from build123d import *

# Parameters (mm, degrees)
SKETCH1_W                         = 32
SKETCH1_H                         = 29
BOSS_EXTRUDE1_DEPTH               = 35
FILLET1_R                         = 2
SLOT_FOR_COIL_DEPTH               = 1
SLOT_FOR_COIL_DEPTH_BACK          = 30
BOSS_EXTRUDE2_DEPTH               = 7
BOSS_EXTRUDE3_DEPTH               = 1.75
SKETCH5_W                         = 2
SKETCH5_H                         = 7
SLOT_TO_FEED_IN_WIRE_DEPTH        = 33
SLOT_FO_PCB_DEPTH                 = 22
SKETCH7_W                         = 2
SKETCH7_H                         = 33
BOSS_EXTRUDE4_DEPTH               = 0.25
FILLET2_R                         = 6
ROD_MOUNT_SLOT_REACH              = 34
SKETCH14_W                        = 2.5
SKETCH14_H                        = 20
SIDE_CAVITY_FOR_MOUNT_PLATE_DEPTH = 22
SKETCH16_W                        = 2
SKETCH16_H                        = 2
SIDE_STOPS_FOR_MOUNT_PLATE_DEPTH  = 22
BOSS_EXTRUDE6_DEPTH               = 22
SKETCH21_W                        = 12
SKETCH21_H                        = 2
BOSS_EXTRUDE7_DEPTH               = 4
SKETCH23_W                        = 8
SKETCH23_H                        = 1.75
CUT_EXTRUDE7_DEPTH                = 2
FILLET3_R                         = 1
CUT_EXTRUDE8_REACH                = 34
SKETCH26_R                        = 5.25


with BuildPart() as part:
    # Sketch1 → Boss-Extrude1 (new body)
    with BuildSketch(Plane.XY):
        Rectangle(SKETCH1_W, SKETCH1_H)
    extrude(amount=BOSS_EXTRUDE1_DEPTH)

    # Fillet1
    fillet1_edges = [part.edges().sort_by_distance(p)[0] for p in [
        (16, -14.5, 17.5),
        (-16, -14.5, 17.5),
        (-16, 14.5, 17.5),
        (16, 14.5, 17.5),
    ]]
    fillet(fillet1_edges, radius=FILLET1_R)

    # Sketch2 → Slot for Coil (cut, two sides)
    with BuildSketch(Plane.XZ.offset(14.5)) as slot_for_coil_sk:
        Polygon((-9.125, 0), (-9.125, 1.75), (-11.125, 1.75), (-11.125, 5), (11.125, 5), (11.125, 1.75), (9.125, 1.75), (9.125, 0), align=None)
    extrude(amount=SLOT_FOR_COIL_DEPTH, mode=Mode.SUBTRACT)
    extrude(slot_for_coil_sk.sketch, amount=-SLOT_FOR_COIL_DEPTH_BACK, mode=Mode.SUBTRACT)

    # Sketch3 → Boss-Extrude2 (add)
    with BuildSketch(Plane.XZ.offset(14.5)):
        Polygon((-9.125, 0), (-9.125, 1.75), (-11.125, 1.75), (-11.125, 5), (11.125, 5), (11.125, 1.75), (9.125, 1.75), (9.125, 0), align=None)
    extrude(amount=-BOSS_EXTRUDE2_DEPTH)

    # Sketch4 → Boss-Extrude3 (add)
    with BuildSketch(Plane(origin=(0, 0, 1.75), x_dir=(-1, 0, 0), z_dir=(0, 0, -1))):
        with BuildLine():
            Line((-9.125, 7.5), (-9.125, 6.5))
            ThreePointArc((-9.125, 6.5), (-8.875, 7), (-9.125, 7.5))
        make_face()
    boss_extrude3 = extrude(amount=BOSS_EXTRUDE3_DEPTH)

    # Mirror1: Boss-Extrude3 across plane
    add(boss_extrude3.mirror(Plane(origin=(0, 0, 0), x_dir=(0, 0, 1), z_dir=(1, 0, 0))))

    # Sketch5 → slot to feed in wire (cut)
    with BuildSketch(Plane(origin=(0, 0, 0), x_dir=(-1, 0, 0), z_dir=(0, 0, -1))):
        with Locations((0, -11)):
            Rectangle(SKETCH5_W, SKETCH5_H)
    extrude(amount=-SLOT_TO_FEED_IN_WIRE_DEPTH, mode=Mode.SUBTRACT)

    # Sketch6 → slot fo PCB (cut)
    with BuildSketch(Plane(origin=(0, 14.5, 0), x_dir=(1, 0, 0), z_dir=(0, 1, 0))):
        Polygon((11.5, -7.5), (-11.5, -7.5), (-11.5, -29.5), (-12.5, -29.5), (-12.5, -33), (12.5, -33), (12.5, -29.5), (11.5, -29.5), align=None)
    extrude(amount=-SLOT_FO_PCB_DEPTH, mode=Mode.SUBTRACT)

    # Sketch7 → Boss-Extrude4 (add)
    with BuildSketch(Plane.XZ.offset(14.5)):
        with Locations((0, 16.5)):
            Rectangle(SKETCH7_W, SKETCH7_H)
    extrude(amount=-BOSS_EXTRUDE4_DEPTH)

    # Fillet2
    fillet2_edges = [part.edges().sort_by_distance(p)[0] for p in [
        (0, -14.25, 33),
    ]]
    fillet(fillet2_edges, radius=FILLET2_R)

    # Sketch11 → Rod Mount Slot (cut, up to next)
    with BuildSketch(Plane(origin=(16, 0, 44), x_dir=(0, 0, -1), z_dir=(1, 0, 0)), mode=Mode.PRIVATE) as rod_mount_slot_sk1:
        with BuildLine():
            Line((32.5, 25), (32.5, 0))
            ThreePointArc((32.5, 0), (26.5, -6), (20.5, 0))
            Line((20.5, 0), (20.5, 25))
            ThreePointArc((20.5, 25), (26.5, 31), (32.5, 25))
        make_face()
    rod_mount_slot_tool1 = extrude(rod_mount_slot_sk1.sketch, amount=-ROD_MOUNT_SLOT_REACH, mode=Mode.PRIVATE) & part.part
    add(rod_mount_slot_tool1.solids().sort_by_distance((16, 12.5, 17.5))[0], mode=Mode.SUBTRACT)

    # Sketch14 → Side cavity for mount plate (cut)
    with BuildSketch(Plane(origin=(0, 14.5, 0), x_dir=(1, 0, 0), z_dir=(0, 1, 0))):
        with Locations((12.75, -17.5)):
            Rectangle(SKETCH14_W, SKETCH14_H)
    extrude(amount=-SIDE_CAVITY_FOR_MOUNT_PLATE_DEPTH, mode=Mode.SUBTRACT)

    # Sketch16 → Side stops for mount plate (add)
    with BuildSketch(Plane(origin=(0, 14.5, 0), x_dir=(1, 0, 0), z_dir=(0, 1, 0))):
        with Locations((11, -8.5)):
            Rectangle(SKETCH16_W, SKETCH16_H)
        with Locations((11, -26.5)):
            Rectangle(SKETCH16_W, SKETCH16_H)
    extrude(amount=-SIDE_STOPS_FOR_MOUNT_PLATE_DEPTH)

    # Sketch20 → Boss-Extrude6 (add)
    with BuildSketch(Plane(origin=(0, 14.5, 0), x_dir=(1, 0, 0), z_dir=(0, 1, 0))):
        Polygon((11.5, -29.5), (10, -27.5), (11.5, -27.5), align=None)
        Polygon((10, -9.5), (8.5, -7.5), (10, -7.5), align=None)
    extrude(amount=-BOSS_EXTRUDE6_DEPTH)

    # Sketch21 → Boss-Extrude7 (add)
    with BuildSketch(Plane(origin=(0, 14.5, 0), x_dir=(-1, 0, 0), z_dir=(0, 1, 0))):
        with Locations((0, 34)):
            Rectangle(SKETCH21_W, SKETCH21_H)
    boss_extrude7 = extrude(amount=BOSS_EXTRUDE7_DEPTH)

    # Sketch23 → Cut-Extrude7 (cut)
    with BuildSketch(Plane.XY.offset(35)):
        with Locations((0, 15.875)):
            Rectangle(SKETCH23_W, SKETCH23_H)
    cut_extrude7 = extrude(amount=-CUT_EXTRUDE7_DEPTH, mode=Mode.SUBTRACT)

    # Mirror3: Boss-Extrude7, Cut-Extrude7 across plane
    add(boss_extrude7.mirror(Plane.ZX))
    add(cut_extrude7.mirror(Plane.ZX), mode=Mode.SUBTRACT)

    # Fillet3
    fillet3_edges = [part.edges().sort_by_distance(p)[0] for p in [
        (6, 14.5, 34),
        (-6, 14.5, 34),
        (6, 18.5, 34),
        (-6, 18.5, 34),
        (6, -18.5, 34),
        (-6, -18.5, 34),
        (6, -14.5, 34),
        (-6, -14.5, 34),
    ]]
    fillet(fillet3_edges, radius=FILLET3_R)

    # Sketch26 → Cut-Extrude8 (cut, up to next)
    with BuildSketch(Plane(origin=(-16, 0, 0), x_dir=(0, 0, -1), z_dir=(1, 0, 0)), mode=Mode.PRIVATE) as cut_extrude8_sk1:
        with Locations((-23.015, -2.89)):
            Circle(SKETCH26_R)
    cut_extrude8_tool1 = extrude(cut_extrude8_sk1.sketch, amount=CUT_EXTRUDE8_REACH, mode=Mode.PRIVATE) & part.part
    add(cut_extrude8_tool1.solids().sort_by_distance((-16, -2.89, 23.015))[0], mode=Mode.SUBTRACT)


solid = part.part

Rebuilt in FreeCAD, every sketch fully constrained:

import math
import FreeCAD as App
import Part
import Sketcher

V = App.Vector
Q = App.Units.Quantity


def edges_at(feature, points):
    """Names of the edges that pass closest to the given points."""
    edges = feature.Shape.Edges
    near = lambda p: min(range(len(edges)), key=lambda i: edges[i].distToShape(Part.Vertex(*p))[0])
    return sorted({f"Edge{near(p) + 1}" for p in points})

doc = App.newDocument("Part")
body = doc.addObject("PartDesign::Body", "Body")

# Sketch on XY plane
sketch1 = doc.addObject("Sketcher::SketchObject", "Sketch")
body.addObject(sketch1)
sketch1.AttachmentSupport = (doc.XY_Plane, [""])
sketch1.MapMode = "FlatFace"
sketch1.addGeometry(Part.LineSegment(V(-16, 14, 0), V(-16, -14, 0)), False)
sketch1.addGeometry(Part.LineSegment(V(-16, -14, 0), V(16, -14, 0)), False)
sketch1.addGeometry(Part.LineSegment(V(16, -14, 0), V(16, 14, 0)), False)
sketch1.addGeometry(Part.LineSegment(V(16, 14, 0), V(-16, 14, 0)), False)
sketch1.addConstraint(Sketcher.Constraint("Coincident", 0, 2, 1, 1))
sketch1.addConstraint(Sketcher.Constraint("Coincident", 1, 2, 2, 1))
sketch1.addConstraint(Sketcher.Constraint("Coincident", 2, 2, 3, 1))
sketch1.addConstraint(Sketcher.Constraint("Coincident", 3, 2, 0, 1))
sketch1.addConstraint(Sketcher.Constraint("Vertical", 0))
sketch1.addConstraint(Sketcher.Constraint("Horizontal", 1))
sketch1.addConstraint(Sketcher.Constraint("Vertical", 2))
sketch1.addConstraint(Sketcher.Constraint("Horizontal", 3))
sketch1.addConstraint(Sketcher.Constraint("Symmetric", 0, 2, 2, 2, -1, 1))
sketch1.addConstraint(Sketcher.Constraint("DistanceX", 1, 1, 1, 2, Q("32 mm")))
sketch1.addConstraint(Sketcher.Constraint("DistanceY", 0, 2, 0, 1, Q("29 mm")))
pad1 = doc.addObject("PartDesign::Pad", "Pad")
body.addObject(pad1)
pad1.Profile = sketch1
pad1.Length = 35
doc.recompute()

fillet = doc.addObject("PartDesign::Fillet", "Fillet")
body.addObject(fillet)
fillet.Base = (pad1, edges_at(pad1, [
    (16, -14.5, 17.5),
    (-16, -14.5, 17.5),
    (-16, 14.5, 17.5),
    (16, 14.5, 17.5),
]))
fillet.Radius = 2

# Sketch on XZ plane
sketch2 = doc.addObject("Sketcher::SketchObject", "Sketch001")
body.addObject(sketch2)
sketch2.AttachmentSupport = (doc.XZ_Plane, [""])
sketch2.MapMode = "FlatFace"
sketch2.AttachmentOffset = App.Placement(V(0, 0, 14.5), App.Rotation())
sketch2.addGeometry(Part.LineSegment(V(-9.1, 1.8, 0), V(-9.1, 0, 0)), False)
sketch2.addGeometry(Part.LineSegment(V(-9.1, 0, 0), V(9.1, 0, 0)), False)
sketch2.addGeometry(Part.LineSegment(V(9.1, 0, 0), V(9.1, 1.8, 0)), False)
sketch2.addGeometry(Part.LineSegment(V(9.1, 1.8, 0), V(11.1, 1.8, 0)), False)
sketch2.addGeometry(Part.LineSegment(V(11.1, 1.8, 0), V(11.1, 5, 0)), False)
sketch2.addGeometry(Part.LineSegment(V(11.1, 5, 0), V(-11.1, 5, 0)), False)
sketch2.addGeometry(Part.LineSegment(V(-11.1, 5, 0), V(-11.1, 1.8, 0)), False)
sketch2.addGeometry(Part.LineSegment(V(-11.1, 1.8, 0), V(-9.1, 1.8, 0)), False)
sketch2.addConstraint(Sketcher.Constraint("Coincident", 0, 2, 1, 1))
sketch2.addConstraint(Sketcher.Constraint("Coincident", 1, 2, 2, 1))
sketch2.addConstraint(Sketcher.Constraint("Coincident", 2, 2, 3, 1))
sketch2.addConstraint(Sketcher.Constraint("Coincident", 3, 2, 4, 1))
sketch2.addConstraint(Sketcher.Constraint("Coincident", 4, 2, 5, 1))
sketch2.addConstraint(Sketcher.Constraint("Coincident", 5, 2, 6, 1))
sketch2.addConstraint(Sketcher.Constraint("Coincident", 6, 2, 7, 1))
sketch2.addConstraint(Sketcher.Constraint("Coincident", 7, 2, 0, 1))
sketch2.addConstraint(Sketcher.Constraint("Vertical", 0))
sketch2.addConstraint(Sketcher.Constraint("Horizontal", 1))
sketch2.addConstraint(Sketcher.Constraint("Vertical", 2))
sketch2.addConstraint(Sketcher.Constraint("Horizontal", 3))
sketch2.addConstraint(Sketcher.Constraint("Vertical", 4))
sketch2.addConstraint(Sketcher.Constraint("Horizontal", 5))
sketch2.addConstraint(Sketcher.Constraint("Vertical", 6))
sketch2.addConstraint(Sketcher.Constraint("Horizontal", 7))
sketch2.addConstraint(Sketcher.Constraint("Symmetric", 0, 2, 1, 2, -1, 1))
sketch2.addConstraint(Sketcher.Constraint("Symmetric", 3, 2, 6, 2, -2))
sketch2.addConstraint(Sketcher.Constraint("DistanceX", 3, 1, 3, 2, Q("2 mm")))
sketch2.addConstraint(Sketcher.Constraint("DistanceY", -1, 1, 4, 2, Q("5 mm")))
sketch2.addConstraint(Sketcher.Constraint("DistanceX", 1, 1, 1, 2, Q("18.25 mm")))
sketch2.addConstraint(Sketcher.Constraint("DistanceY", 0, 2, 0, 1, Q("1.75 mm")))
pocket1 = doc.addObject("PartDesign::Pocket", "Pocket")
body.addObject(pocket1)
pocket1.Profile = sketch2
pocket1.Type = "ThroughAll"
pocket1.Midplane = True

# Sketch on XZ plane
sketch3 = doc.addObject("Sketcher::SketchObject", "Sketch002")
body.addObject(sketch3)
sketch3.AttachmentSupport = (doc.XZ_Plane, [""])
sketch3.MapMode = "FlatFace"
sketch3.AttachmentOffset = App.Placement(V(0, 0, 14.5), App.Rotation())
sketch3.addGeometry(Part.LineSegment(V(-9.1, 1.8, 0), V(-9.1, 0, 0)), False)
sketch3.addGeometry(Part.LineSegment(V(-9.1, 0, 0), V(9.1, 0, 0)), False)
sketch3.addGeometry(Part.LineSegment(V(9.1, 0, 0), V(9.1, 1.8, 0)), False)
sketch3.addGeometry(Part.LineSegment(V(9.1, 1.8, 0), V(11.1, 1.8, 0)), False)
sketch3.addGeometry(Part.LineSegment(V(11.1, 1.8, 0), V(11.1, 5, 0)), False)
sketch3.addGeometry(Part.LineSegment(V(11.1, 5, 0), V(-11.1, 5, 0)), False)
sketch3.addGeometry(Part.LineSegment(V(-11.1, 5, 0), V(-11.1, 1.8, 0)), False)
sketch3.addGeometry(Part.LineSegment(V(-11.1, 1.8, 0), V(-9.1, 1.8, 0)), False)
sketch3.addConstraint(Sketcher.Constraint("Coincident", 0, 2, 1, 1))
sketch3.addConstraint(Sketcher.Constraint("Coincident", 1, 2, 2, 1))
sketch3.addConstraint(Sketcher.Constraint("Coincident", 2, 2, 3, 1))
sketch3.addConstraint(Sketcher.Constraint("Coincident", 3, 2, 4, 1))
sketch3.addConstraint(Sketcher.Constraint("Coincident", 4, 2, 5, 1))
sketch3.addConstraint(Sketcher.Constraint("Coincident", 5, 2, 6, 1))
sketch3.addConstraint(Sketcher.Constraint("Coincident", 6, 2, 7, 1))
sketch3.addConstraint(Sketcher.Constraint("Coincident", 7, 2, 0, 1))
sketch3.addConstraint(Sketcher.Constraint("Vertical", 0))
sketch3.addConstraint(Sketcher.Constraint("Horizontal", 1))
sketch3.addConstraint(Sketcher.Constraint("Vertical", 2))
sketch3.addConstraint(Sketcher.Constraint("Horizontal", 3))
sketch3.addConstraint(Sketcher.Constraint("Vertical", 4))
sketch3.addConstraint(Sketcher.Constraint("Horizontal", 5))
sketch3.addConstraint(Sketcher.Constraint("Vertical", 6))
sketch3.addConstraint(Sketcher.Constraint("Horizontal", 7))
sketch3.addConstraint(Sketcher.Constraint("Symmetric", 0, 2, 1, 2, -1, 1))
sketch3.addConstraint(Sketcher.Constraint("Symmetric", 3, 2, 6, 2, -2))
sketch3.addConstraint(Sketcher.Constraint("DistanceX", 3, 1, 3, 2, Q("2 mm")))
sketch3.addConstraint(Sketcher.Constraint("DistanceY", -1, 1, 4, 2, Q("5 mm")))
sketch3.addConstraint(Sketcher.Constraint("DistanceX", 1, 1, 1, 2, Q("18.25 mm")))
sketch3.addConstraint(Sketcher.Constraint("DistanceY", 0, 2, 0, 1, Q("1.75 mm")))
pad2 = doc.addObject("PartDesign::Pad", "Pad001")
body.addObject(pad2)
pad2.Profile = sketch3
pad2.Length = 7
pad2.Reversed = True

# Sketch on XY plane
sketch4 = doc.addObject("Sketcher::SketchObject", "Sketch003")
body.addObject(sketch4)
sketch4.AttachmentSupport = (doc.XY_Plane, [""])
sketch4.MapMode = "FlatFace"
sketch4.AttachmentOffset = App.Placement(V(0, 0, 1.75), App.Rotation())
sketch4.addGeometry(Part.LineSegment(V(9.1, 7.5, 0), V(9.1, 6.5, 0)), False)
sketch4.addGeometry(Part.ArcOfCircle(Part.Circle(V(9.5, 7, 0), V(0, 0, 1), 0.6), math.radians(127), math.radians(233)), False)
sketch4.addConstraint(Sketcher.Constraint("Coincident", 0, 1, 1, 1))
sketch4.addConstraint(Sketcher.Constraint("Coincident", 1, 2, 0, 2))
sketch4.addConstraint(Sketcher.Constraint("Vertical", 0))
sketch4.addConstraint(Sketcher.Constraint("DistanceY", 0, 2, 0, 1, Q("1 mm")))
sketch4.addConstraint(Sketcher.Constraint("DistanceY", -1, 1, 1, 3, Q("7 mm")))
sketch4.addConstraint(Sketcher.Constraint("Radius", 1, Q("0.625 mm")))
sketch4.addConstraint(Sketcher.Constraint("DistanceX", -1, 1, 1, 3, Q("9.5 mm")))
pad3 = doc.addObject("PartDesign::Pad", "Pad002")
body.addObject(pad3)
pad3.Profile = sketch4
pad3.Length = 1.75
pad3.Reversed = True
doc.recompute()

mirrored = doc.addObject("PartDesign::Mirrored", "Mirrored")
body.addObject(mirrored)
mirrored.Originals = [pad3]
mirrored.MirrorPlane = (doc.YZ_Plane, [""])
body.Tip = mirrored

# Sketch on XY plane
sketch5 = doc.addObject("Sketcher::SketchObject", "Sketch004")
body.addObject(sketch5)
sketch5.AttachmentSupport = (doc.XY_Plane, [""])
sketch5.MapMode = "FlatFace"
sketch5.addGeometry(Part.LineSegment(V(1, -7.5, 0), V(1, -14.5, 0)), False)
sketch5.addGeometry(Part.LineSegment(V(1, -14.5, 0), V(-1, -14.5, 0)), False)
sketch5.addGeometry(Part.LineSegment(V(-1, -14.5, 0), V(-1, -7.5, 0)), False)
sketch5.addGeometry(Part.LineSegment(V(-1, -7.5, 0), V(1, -7.5, 0)), False)
sketch5.addConstraint(Sketcher.Constraint("Coincident", 0, 2, 1, 1))
sketch5.addConstraint(Sketcher.Constraint("Coincident", 1, 2, 2, 1))
sketch5.addConstraint(Sketcher.Constraint("Coincident", 2, 2, 3, 1))
sketch5.addConstraint(Sketcher.Constraint("Coincident", 3, 2, 0, 1))
sketch5.addConstraint(Sketcher.Constraint("Vertical", 0))
sketch5.addConstraint(Sketcher.Constraint("Horizontal", 1))
sketch5.addConstraint(Sketcher.Constraint("Vertical", 2))
sketch5.addConstraint(Sketcher.Constraint("Horizontal", 3))
sketch5.addConstraint(Sketcher.Constraint("DistanceX", 1, 2, 1, 1, Q("2 mm")))
sketch5.addConstraint(Sketcher.Constraint("DistanceY", 0, 2, 0, 1, Q("7 mm")))
sketch5.addConstraint(Sketcher.Constraint("DistanceX", -1, 1, 0, 2, Q("1 mm")))
sketch5.addConstraint(Sketcher.Constraint("DistanceY", 0, 2, -1, 1, Q("14.5 mm")))
pocket2 = doc.addObject("PartDesign::Pocket", "Pocket001")
body.addObject(pocket2)
pocket2.Profile = sketch5
pocket2.Length = 33
pocket2.Reversed = True

# Sketch on XZ plane
sketch6 = doc.addObject("Sketcher::SketchObject", "Sketch005")
body.addObject(sketch6)
sketch6.AttachmentSupport = (doc.XZ_Plane, [""])
sketch6.MapMode = "FlatFace"
sketch6.AttachmentOffset = App.Placement(V(0, 0, -14.5), App.Rotation())
sketch6.addGeometry(Part.LineSegment(V(11.5, 7.5, 0), V(-11.5, 7.5, 0)), False)
sketch6.addGeometry(Part.LineSegment(V(-11.5, 7.5, 0), V(-11.5, 29.5, 0)), False)
sketch6.addGeometry(Part.LineSegment(V(-11.5, 29.5, 0), V(-12.5, 29.5, 0)), False)
sketch6.addGeometry(Part.LineSegment(V(-12.5, 29.5, 0), V(-12.5, 33, 0)), False)
sketch6.addGeometry(Part.LineSegment(V(-12.5, 33, 0), V(12.5, 33, 0)), False)
sketch6.addGeometry(Part.LineSegment(V(12.5, 33, 0), V(12.5, 29.5, 0)), False)
sketch6.addGeometry(Part.LineSegment(V(12.5, 29.5, 0), V(11.5, 29.5, 0)), False)
sketch6.addGeometry(Part.LineSegment(V(11.5, 29.5, 0), V(11.5, 7.5, 0)), False)
sketch6.addConstraint(Sketcher.Constraint("Coincident", 0, 2, 1, 1))
sketch6.addConstraint(Sketcher.Constraint("Coincident", 1, 2, 2, 1))
sketch6.addConstraint(Sketcher.Constraint("Coincident", 2, 2, 3, 1))
sketch6.addConstraint(Sketcher.Constraint("Coincident", 3, 2, 4, 1))
sketch6.addConstraint(Sketcher.Constraint("Coincident", 4, 2, 5, 1))
sketch6.addConstraint(Sketcher.Constraint("Coincident", 5, 2, 6, 1))
sketch6.addConstraint(Sketcher.Constraint("Coincident", 6, 2, 7, 1))
sketch6.addConstraint(Sketcher.Constraint("Coincident", 7, 2, 0, 1))
sketch6.addConstraint(Sketcher.Constraint("Horizontal", 0))
sketch6.addConstraint(Sketcher.Constraint("Vertical", 1))
sketch6.addConstraint(Sketcher.Constraint("Horizontal", 2))
sketch6.addConstraint(Sketcher.Constraint("Vertical", 3))
sketch6.addConstraint(Sketcher.Constraint("Horizontal", 4))
sketch6.addConstraint(Sketcher.Constraint("Vertical", 5))
sketch6.addConstraint(Sketcher.Constraint("Horizontal", 6))
sketch6.addConstraint(Sketcher.Constraint("Vertical", 7))
sketch6.addConstraint(Sketcher.Constraint("Symmetric", 2, 2, 5, 2, -2))
sketch6.addConstraint(Sketcher.Constraint("Equal", 2, 6))
sketch6.addConstraint(Sketcher.Constraint("DistanceX", 0, 2, 0, 1, Q("23 mm")))
sketch6.addConstraint(Sketcher.Constraint("DistanceX", 2, 2, 2, 1, Q("1 mm")))
sketch6.addConstraint(Sketcher.Constraint("DistanceY", 1, 1, 1, 2, Q("22 mm")))
sketch6.addConstraint(Sketcher.Constraint("DistanceY", 3, 1, 3, 2, Q("3.5 mm")))
sketch6.addConstraint(Sketcher.Constraint("DistanceY", -1, 1, 3, 2, Q("33 mm")))
pocket3 = doc.addObject("PartDesign::Pocket", "Pocket002")
body.addObject(pocket3)
pocket3.Profile = sketch6
pocket3.Length = 22
pocket3.Reversed = True

# Sketch on XZ plane
sketch7 = doc.addObject("Sketcher::SketchObject", "Sketch006")
body.addObject(sketch7)
sketch7.AttachmentSupport = (doc.XZ_Plane, [""])
sketch7.MapMode = "FlatFace"
sketch7.AttachmentOffset = App.Placement(V(0, 0, 14.5), App.Rotation())
sketch7.addGeometry(Part.LineSegment(V(-1, 33, 0), V(-1, 0, 0)), False)
sketch7.addGeometry(Part.LineSegment(V(-1, 0, 0), V(1, 0, 0)), False)
sketch7.addGeometry(Part.LineSegment(V(1, 0, 0), V(1, 33, 0)), False)
sketch7.addGeometry(Part.LineSegment(V(1, 33, 0), V(-1, 33, 0)), False)
sketch7.addConstraint(Sketcher.Constraint("Coincident", 0, 2, 1, 1))
sketch7.addConstraint(Sketcher.Constraint("Coincident", 1, 2, 2, 1))
sketch7.addConstraint(Sketcher.Constraint("Coincident", 2, 2, 3, 1))
sketch7.addConstraint(Sketcher.Constraint("Coincident", 3, 2, 0, 1))
sketch7.addConstraint(Sketcher.Constraint("Vertical", 0))
sketch7.addConstraint(Sketcher.Constraint("Horizontal", 1))
sketch7.addConstraint(Sketcher.Constraint("Vertical", 2))
sketch7.addConstraint(Sketcher.Constraint("Horizontal", 3))
sketch7.addConstraint(Sketcher.Constraint("Symmetric", 0, 2, 1, 2, -1, 1))
sketch7.addConstraint(Sketcher.Constraint("DistanceX", 1, 1, 1, 2, Q("2 mm")))
sketch7.addConstraint(Sketcher.Constraint("DistanceY", 0, 2, 0, 1, Q("33 mm")))
pad4 = doc.addObject("PartDesign::Pad", "Pad003")
body.addObject(pad4)
pad4.Profile = sketch7
pad4.Length = 0.25
pad4.Reversed = True
doc.recompute()

fillet2 = doc.addObject("PartDesign::Fillet", "Fillet001")
body.addObject(fillet2)
fillet2.Base = (pad4, edges_at(pad4, [(0, -14.25, 33)]))
fillet2.Radius = 6

# Sketch on YZ plane
sketch8 = doc.addObject("Sketcher::SketchObject", "Sketch007")
body.addObject(sketch8)
sketch8.AttachmentSupport = (doc.YZ_Plane, [""])
sketch8.MapMode = "FlatFace"
sketch8.AttachmentOffset = App.Placement(V(0, 0, 16), App.Rotation())
sketch8.addGeometry(Part.LineSegment(V(0, 12, 0), V(25, 12, 0)), False)
sketch8.addGeometry(Part.ArcOfCircle(Part.Circle(V(25, 18, 0), V(0, 0, 1), 6), math.radians(-90), math.radians(90)), False)
sketch8.addGeometry(Part.LineSegment(V(25, 24, 0), V(0, 24, 0)), False)
sketch8.addGeometry(Part.ArcOfCircle(Part.Circle(V(0, 18, 0), V(0, 0, 1), 6), math.radians(90), math.radians(270)), False)
sketch8.addConstraint(Sketcher.Constraint("Tangent", 0, 2, 1, 1))
sketch8.addConstraint(Sketcher.Constraint("Tangent", 1, 2, 2, 1))
sketch8.addConstraint(Sketcher.Constraint("Tangent", 2, 2, 3, 1))
sketch8.addConstraint(Sketcher.Constraint("Tangent", 3, 2, 0, 1))
sketch8.addConstraint(Sketcher.Constraint("Horizontal", 0))
sketch8.addConstraint(Sketcher.Constraint("Horizontal", 2))
sketch8.addConstraint(Sketcher.Constraint("PointOnObject", 3, 3, -2))
sketch8.addConstraint(Sketcher.Constraint("Radius", 1, Q("6 mm")))
sketch8.addConstraint(Sketcher.Constraint("DistanceX", 0, 1, 0, 2, Q("25 mm")))
sketch8.addConstraint(Sketcher.Constraint("DistanceY", -1, 1, 1, 3, Q("17.5 mm")))
pocket4 = doc.addObject("PartDesign::Pocket", "Pocket003")
body.addObject(pocket4)
pocket4.Profile = sketch8
pocket4.Type = "UpToFirst"

# Sketch on XZ plane
sketch9 = doc.addObject("Sketcher::SketchObject", "Sketch008")
body.addObject(sketch9)
sketch9.AttachmentSupport = (doc.XZ_Plane, [""])
sketch9.MapMode = "FlatFace"
sketch9.AttachmentOffset = App.Placement(V(0, 0, -14.5), App.Rotation())
sketch9.addGeometry(Part.LineSegment(V(11.5, 7.5, 0), V(11.5, 27.5, 0)), False)
sketch9.addGeometry(Part.LineSegment(V(11.5, 27.5, 0), V(14, 27.5, 0)), False)
sketch9.addGeometry(Part.LineSegment(V(14, 27.5, 0), V(14, 7.5, 0)), False)
sketch9.addGeometry(Part.LineSegment(V(14, 7.5, 0), V(11.5, 7.5, 0)), False)
sketch9.addConstraint(Sketcher.Constraint("Coincident", 0, 2, 1, 1))
sketch9.addConstraint(Sketcher.Constraint("Coincident", 1, 2, 2, 1))
sketch9.addConstraint(Sketcher.Constraint("Coincident", 2, 2, 3, 1))
sketch9.addConstraint(Sketcher.Constraint("Coincident", 3, 2, 0, 1))
sketch9.addConstraint(Sketcher.Constraint("Vertical", 0))
sketch9.addConstraint(Sketcher.Constraint("Horizontal", 1))
sketch9.addConstraint(Sketcher.Constraint("Vertical", 2))
sketch9.addConstraint(Sketcher.Constraint("Horizontal", 3))
sketch9.addConstraint(Sketcher.Constraint("DistanceY", 0, 1, 0, 2, Q("20 mm")))
sketch9.addConstraint(Sketcher.Constraint("DistanceX", 1, 1, 1, 2, Q("2.5 mm")))
sketch9.addConstraint(Sketcher.Constraint("DistanceX", -1, 1, 1, 2, Q("14 mm")))
sketch9.addConstraint(Sketcher.Constraint("DistanceY", -1, 1, 0, 2, Q("27.5 mm")))
pocket5 = doc.addObject("PartDesign::Pocket", "Pocket004")
body.addObject(pocket5)
pocket5.Profile = sketch9
pocket5.Length = 22
pocket5.Reversed = True

# Sketch on XZ plane
sketch10 = doc.addObject("Sketcher::SketchObject", "Sketch009")
body.addObject(sketch10)
sketch10.AttachmentSupport = (doc.XZ_Plane, [""])
sketch10.MapMode = "FlatFace"
sketch10.AttachmentOffset = App.Placement(V(0, 0, -14.5), App.Rotation())
sketch10.addGeometry(Part.LineSegment(V(10, 7.5, 0), V(10, 9.5, 0)), False)
sketch10.addGeometry(Part.LineSegment(V(10, 9.5, 0), V(12, 9.5, 0)), False)
sketch10.addGeometry(Part.LineSegment(V(12, 9.5, 0), V(12, 7.5, 0)), False)
sketch10.addGeometry(Part.LineSegment(V(12, 7.5, 0), V(10, 7.5, 0)), False)
sketch10.addGeometry(Part.LineSegment(V(10, 25.5, 0), V(10, 27.5, 0)), False)
sketch10.addGeometry(Part.LineSegment(V(10, 27.5, 0), V(12, 27.5, 0)), False)
sketch10.addGeometry(Part.LineSegment(V(12, 27.5, 0), V(12, 25.5, 0)), False)
sketch10.addGeometry(Part.LineSegment(V(12, 25.5, 0), V(10, 25.5, 0)), False)
sketch10.addConstraint(Sketcher.Constraint("Coincident", 0, 2, 1, 1))
sketch10.addConstraint(Sketcher.Constraint("Coincident", 1, 2, 2, 1))
sketch10.addConstraint(Sketcher.Constraint("Coincident", 2, 2, 3, 1))
sketch10.addConstraint(Sketcher.Constraint("Coincident", 3, 2, 0, 1))
sketch10.addConstraint(Sketcher.Constraint("Coincident", 4, 2, 5, 1))
sketch10.addConstraint(Sketcher.Constraint("Coincident", 5, 2, 6, 1))
sketch10.addConstraint(Sketcher.Constraint("Coincident", 6, 2, 7, 1))
sketch10.addConstraint(Sketcher.Constraint("Coincident", 7, 2, 4, 1))
sketch10.addConstraint(Sketcher.Constraint("Vertical", 0))
sketch10.addConstraint(Sketcher.Constraint("Horizontal", 1))
sketch10.addConstraint(Sketcher.Constraint("Vertical", 2))
sketch10.addConstraint(Sketcher.Constraint("Horizontal", 3))
sketch10.addConstraint(Sketcher.Constraint("Vertical", 4))
sketch10.addConstraint(Sketcher.Constraint("Horizontal", 5))
sketch10.addConstraint(Sketcher.Constraint("Vertical", 6))
sketch10.addConstraint(Sketcher.Constraint("Horizontal", 7))
sketch10.addConstraint(Sketcher.Constraint("Vertical", 3, 2, 4, 2))
sketch10.addConstraint(Sketcher.Constraint("Vertical", 2, 2, 5, 2))
sketch10.addConstraint(Sketcher.Constraint("Equal", 7, 0))
sketch10.addConstraint(Sketcher.Constraint("Equal", 2, 4))
sketch10.addConstraint(Sketcher.Constraint("DistanceX", 1, 1, 1, 2, Q("2 mm")))
sketch10.addConstraint(Sketcher.Constraint("DistanceX", -1, 1, 0, 2, Q("10 mm")))
sketch10.addConstraint(Sketcher.Constraint("DistanceY", 0, 2, 4, 2, Q("18 mm")))
sketch10.addConstraint(Sketcher.Constraint("DistanceY", -1, 1, 0, 2, Q("9.5 mm")))
pad5 = doc.addObject("PartDesign::Pad", "Pad004")
body.addObject(pad5)
pad5.Profile = sketch10
pad5.Length = 22

# Sketch on XZ plane
sketch11 = doc.addObject("Sketcher::SketchObject", "Sketch010")
body.addObject(sketch11)
sketch11.AttachmentSupport = (doc.XZ_Plane, [""])
sketch11.MapMode = "FlatFace"
sketch11.AttachmentOffset = App.Placement(V(0, 0, -14.5), App.Rotation())
sketch11.addGeometry(Part.LineSegment(V(10, 27.5, 0), V(11.5, 29.5, 0)), False)
sketch11.addGeometry(Part.LineSegment(V(11.5, 29.5, 0), V(11.5, 27.5, 0)), False)
sketch11.addGeometry(Part.LineSegment(V(11.5, 27.5, 0), V(10, 27.5, 0)), False)
sketch11.addGeometry(Part.LineSegment(V(8.5, 7.5, 0), V(10, 9.5, 0)), False)
sketch11.addGeometry(Part.LineSegment(V(10, 9.5, 0), V(10, 7.5, 0)), False)
sketch11.addGeometry(Part.LineSegment(V(10, 7.5, 0), V(8.5, 7.5, 0)), False)
sketch11.addConstraint(Sketcher.Constraint("Coincident", 0, 2, 1, 1))
sketch11.addConstraint(Sketcher.Constraint("Coincident", 1, 2, 2, 1))
sketch11.addConstraint(Sketcher.Constraint("Coincident", 2, 2, 0, 1))
sketch11.addConstraint(Sketcher.Constraint("Coincident", 3, 2, 4, 1))
sketch11.addConstraint(Sketcher.Constraint("Coincident", 4, 2, 5, 1))
sketch11.addConstraint(Sketcher.Constraint("Coincident", 5, 2, 3, 1))
sketch11.addConstraint(Sketcher.Constraint("Vertical", 1))
sketch11.addConstraint(Sketcher.Constraint("Horizontal", 2))
sketch11.addConstraint(Sketcher.Constraint("Vertical", 4))
sketch11.addConstraint(Sketcher.Constraint("Horizontal", 5))
sketch11.addConstraint(Sketcher.Constraint("Parallel", 0, 3))
sketch11.addConstraint(Sketcher.Constraint("Vertical", 2, 2, 3, 2))
sketch11.addConstraint(Sketcher.Constraint("Equal", 2, 5))
sketch11.addConstraint(Sketcher.Constraint("DistanceY", 1, 2, 1, 1, Q("2 mm")))
sketch11.addConstraint(Sketcher.Constraint("DistanceX", 2, 2, 2, 1, Q("1.5 mm")))
sketch11.addConstraint(Sketcher.Constraint("DistanceX", -1, 1, 2, 2, Q("10 mm")))
sketch11.addConstraint(Sketcher.Constraint("DistanceY", 3, 2, 2, 2, Q("18 mm")))
sketch11.addConstraint(Sketcher.Constraint("DistanceY", -1, 1, 0, 2, Q("29.5 mm")))
pad6 = doc.addObject("PartDesign::Pad", "Pad005")
body.addObject(pad6)
pad6.Profile = sketch11
pad6.Length = 22

# Sketch on XZ plane
sketch12 = doc.addObject("Sketcher::SketchObject", "Sketch011")
body.addObject(sketch12)
sketch12.AttachmentSupport = (doc.XZ_Plane, [""])
sketch12.MapMode = "FlatFace"
sketch12.AttachmentOffset = App.Placement(V(0, 0, -14.5), App.Rotation())
sketch12.addGeometry(Part.LineSegment(V(6, 35, 0), V(6, 33, 0)), False)
sketch12.addGeometry(Part.LineSegment(V(6, 33, 0), V(-6, 33, 0)), False)
sketch12.addGeometry(Part.LineSegment(V(-6, 33, 0), V(-6, 35, 0)), False)
sketch12.addGeometry(Part.LineSegment(V(-6, 35, 0), V(6, 35, 0)), False)
sketch12.addConstraint(Sketcher.Constraint("Coincident", 0, 2, 1, 1))
sketch12.addConstraint(Sketcher.Constraint("Coincident", 1, 2, 2, 1))
sketch12.addConstraint(Sketcher.Constraint("Coincident", 2, 2, 3, 1))
sketch12.addConstraint(Sketcher.Constraint("Coincident", 3, 2, 0, 1))
sketch12.addConstraint(Sketcher.Constraint("Vertical", 0))
sketch12.addConstraint(Sketcher.Constraint("Horizontal", 1))
sketch12.addConstraint(Sketcher.Constraint("Vertical", 2))
sketch12.addConstraint(Sketcher.Constraint("Horizontal", 3))
sketch12.addConstraint(Sketcher.Constraint("DistanceX", 1, 2, 1, 1, Q("12 mm")))
sketch12.addConstraint(Sketcher.Constraint("DistanceY", 0, 2, 0, 1, Q("2 mm")))
sketch12.addConstraint(Sketcher.Constraint("DistanceX", -1, 1, 0, 2, Q("6 mm")))
sketch12.addConstraint(Sketcher.Constraint("DistanceY", -1, 1, 0, 2, Q("33 mm")))
pad7 = doc.addObject("PartDesign::Pad", "Pad006")
body.addObject(pad7)
pad7.Profile = sketch12
pad7.Length = 4
pad7.Reversed = True

# Sketch on XY plane
sketch13 = doc.addObject("Sketcher::SketchObject", "Sketch012")
body.addObject(sketch13)
sketch13.AttachmentSupport = (doc.XY_Plane, [""])
sketch13.MapMode = "FlatFace"
sketch13.AttachmentOffset = App.Placement(V(0, 0, 35), App.Rotation())
sketch13.addGeometry(Part.LineSegment(V(-4, 16.8, 0), V(-4, 15, 0)), False)
sketch13.addGeometry(Part.LineSegment(V(-4, 15, 0), V(4, 15, 0)), False)
sketch13.addGeometry(Part.LineSegment(V(4, 15, 0), V(4, 16.8, 0)), False)
sketch13.addGeometry(Part.LineSegment(V(4, 16.8, 0), V(-4, 16.8, 0)), False)
sketch13.addConstraint(Sketcher.Constraint("Coincident", 0, 2, 1, 1))
sketch13.addConstraint(Sketcher.Constraint("Coincident", 1, 2, 2, 1))
sketch13.addConstraint(Sketcher.Constraint("Coincident", 2, 2, 3, 1))
sketch13.addConstraint(Sketcher.Constraint("Coincident", 3, 2, 0, 1))
sketch13.addConstraint(Sketcher.Constraint("Vertical", 0))
sketch13.addConstraint(Sketcher.Constraint("Horizontal", 1))
sketch13.addConstraint(Sketcher.Constraint("Vertical", 2))
sketch13.addConstraint(Sketcher.Constraint("Horizontal", 3))
sketch13.addConstraint(Sketcher.Constraint("DistanceX", 1, 1, 1, 2, Q("8 mm")))
sketch13.addConstraint(Sketcher.Constraint("DistanceX", 0, 2, -1, 1, Q("4 mm")))
sketch13.addConstraint(Sketcher.Constraint("DistanceY", -1, 1, 0, 2, Q("15 mm")))
sketch13.addConstraint(Sketcher.Constraint("DistanceY", 0, 2, 0, 1, Q("1.75 mm")))
pocket6 = doc.addObject("PartDesign::Pocket", "Pocket005")
body.addObject(pocket6)
pocket6.Profile = sketch13
pocket6.Length = 2
doc.recompute()

mirrored2 = doc.addObject("PartDesign::Mirrored", "Mirrored001")
body.addObject(mirrored2)
mirrored2.Originals = [pad7, pocket6]
mirrored2.MirrorPlane = (doc.XZ_Plane, [""])
body.Tip = mirrored2
doc.recompute()

fillet3 = doc.addObject("PartDesign::Fillet", "Fillet002")
body.addObject(fillet3)
fillet3.Base = (mirrored2, edges_at(mirrored2, [
    (6, 14.5, 34),
    (-6, 14.5, 34),
    (6, 18.5, 34),
    (-6, 18.5, 34),
    (6, -18.5, 34),
    (-6, -18.5, 34),
    (6, -14.5, 34),
    (-6, -14.5, 34),
]))
fillet3.Radius = 1

# Sketch on YZ plane
sketch14 = doc.addObject("Sketcher::SketchObject", "Sketch013")
body.addObject(sketch14)
sketch14.AttachmentSupport = (doc.YZ_Plane, [""])
sketch14.MapMode = "FlatFace"
sketch14.AttachmentOffset = App.Placement(V(0, 0, -16), App.Rotation())
sketch14.addGeometry(Part.Circle(V(-3, 23, 0), V(0, 0, 1), 5), False)
sketch14.addConstraint(Sketcher.Constraint("Diameter", 0, Q("10.5 mm")))
sketch14.addConstraint(Sketcher.Constraint("DistanceX", 0, 3, -1, 1, Q("2.89 mm")))
sketch14.addConstraint(Sketcher.Constraint("DistanceY", -1, 1, 0, 3, Q("23.015 mm")))
pocket7 = doc.addObject("PartDesign::Pocket", "Pocket006")
body.addObject(pocket7)
pocket7.Profile = sketch14
pocket7.Length = 15
pocket7.Reversed = True

doc.recompute()
